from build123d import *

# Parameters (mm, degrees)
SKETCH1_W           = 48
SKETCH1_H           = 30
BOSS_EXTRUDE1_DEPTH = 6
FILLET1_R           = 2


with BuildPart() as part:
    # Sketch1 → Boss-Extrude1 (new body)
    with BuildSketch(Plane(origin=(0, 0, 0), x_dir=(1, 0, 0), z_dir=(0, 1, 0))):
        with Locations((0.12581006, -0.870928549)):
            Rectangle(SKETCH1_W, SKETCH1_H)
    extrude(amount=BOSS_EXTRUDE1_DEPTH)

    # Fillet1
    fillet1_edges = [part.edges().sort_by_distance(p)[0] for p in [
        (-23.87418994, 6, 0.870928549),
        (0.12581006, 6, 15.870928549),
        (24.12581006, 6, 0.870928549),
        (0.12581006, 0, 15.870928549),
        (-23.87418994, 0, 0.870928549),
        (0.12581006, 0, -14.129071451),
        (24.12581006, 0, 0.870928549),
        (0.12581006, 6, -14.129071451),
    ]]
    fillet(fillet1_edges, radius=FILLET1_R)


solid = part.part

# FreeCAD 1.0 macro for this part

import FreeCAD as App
import Part
import Sketcher


def edges_at(feature, points):
    """Names of the edges that pass closest to the given points."""
    edges = feature.Shape.Edges
    near = lambda p: min(range(len(edges)), key=lambda i: edges[i].distToShape(Part.Vertex(*p))[0])
    return sorted({f"Edge{near(p) + 1}" for p in points})


def add_polygon(sketch, points):
    """Adds a closed chain of lines whose ends are joined by coincident constraints."""
    first, n = sketch.GeometryCount, len(points)
    for a, b in zip(points, points[1:] + points[:1]):
        sketch.addGeometry(Part.LineSegment(App.Vector(*a, 0), App.Vector(*b, 0)), False)
    for i in range(n):
        sketch.addConstraint(Sketcher.Constraint("Coincident", first + i, 2, first + (i + 1) % n, 1))

doc = App.newDocument("Part")
body = doc.addObject("PartDesign::Body", "Body")

# Sketch on XZ plane
sketch1 = body.newObject("Sketcher::SketchObject", "Sketch")
sketch1.AttachmentSupport = (doc.getObject("XZ_Plane"), [""])
sketch1.MapMode = "FlatFace"
add_polygon(sketch1, [(-23.87419, -14.129071), (-23.87419, 15.870929), (24.12581, 15.870929), (24.12581, -14.129071)])  # lines 0-3
sketch1.addConstraint([
    Sketcher.Constraint("Vertical", 0),
    Sketcher.Constraint("Horizontal", 1),
    Sketcher.Constraint("Vertical", 2),
    Sketcher.Constraint("Horizontal", 3),
    Sketcher.Constraint("DistanceX", 1, 1, 1, 2, 48.0),
    Sketcher.Constraint("DistanceY", 0, 1, 0, 2, 30.0),
    Sketcher.Constraint("DistanceX", 0, 2, -1, 1, 23.87419),
    Sketcher.Constraint("DistanceY", -1, 1, 0, 2, 15.870929),
])
pad1 = body.newObject("PartDesign::Pad", "Pad")
pad1.Profile = sketch1
pad1.Length = 6
pad1.Reversed = True
doc.recompute()

fillet = body.newObject("PartDesign::Fillet", "Fillet")
fillet.Base = (pad1, edges_at(pad1, [
    (-23.874, 6, 0.871),
    (0.126, 6, 15.871),
    (24.126, 6, 0.871),
    (0.126, 0, 15.871),
    (-23.874, 0, 0.871),
    (0.126, 0, -14.129),
    (24.126, 0, 0.871),
    (0.126, 6, -14.129),
]))
fillet.Radius = 2

doc.recompute()
